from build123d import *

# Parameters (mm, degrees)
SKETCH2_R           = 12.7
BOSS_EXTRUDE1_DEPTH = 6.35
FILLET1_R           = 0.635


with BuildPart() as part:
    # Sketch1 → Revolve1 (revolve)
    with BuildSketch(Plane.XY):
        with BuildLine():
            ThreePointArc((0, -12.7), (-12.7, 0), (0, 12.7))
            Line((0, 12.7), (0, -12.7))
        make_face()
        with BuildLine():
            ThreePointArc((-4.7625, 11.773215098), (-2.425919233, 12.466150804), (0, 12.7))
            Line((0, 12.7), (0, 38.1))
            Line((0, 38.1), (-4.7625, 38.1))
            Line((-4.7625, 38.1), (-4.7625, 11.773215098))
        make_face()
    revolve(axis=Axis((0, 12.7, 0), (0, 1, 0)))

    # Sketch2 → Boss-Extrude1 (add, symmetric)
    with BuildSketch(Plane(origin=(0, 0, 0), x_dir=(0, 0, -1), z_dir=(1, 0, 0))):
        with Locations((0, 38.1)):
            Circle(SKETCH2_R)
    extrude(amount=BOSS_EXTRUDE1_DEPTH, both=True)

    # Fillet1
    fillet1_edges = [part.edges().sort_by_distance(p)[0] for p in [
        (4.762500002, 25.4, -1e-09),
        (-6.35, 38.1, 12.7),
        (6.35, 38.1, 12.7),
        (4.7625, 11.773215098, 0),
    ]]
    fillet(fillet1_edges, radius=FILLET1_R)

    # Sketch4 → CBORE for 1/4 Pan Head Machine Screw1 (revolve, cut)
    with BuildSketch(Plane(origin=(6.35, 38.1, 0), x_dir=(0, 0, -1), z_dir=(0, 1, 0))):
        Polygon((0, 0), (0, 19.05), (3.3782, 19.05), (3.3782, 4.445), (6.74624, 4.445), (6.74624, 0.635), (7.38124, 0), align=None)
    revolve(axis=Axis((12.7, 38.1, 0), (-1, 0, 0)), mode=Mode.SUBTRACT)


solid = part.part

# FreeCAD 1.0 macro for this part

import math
import FreeCAD as App
import Part
import Sketcher

V = App.Vector
Q = App.Units.Quantity


def edges_at(feature, points):
    """Names of the edges that pass closest to the given points."""
    edges = feature.Shape.Edges
    near = lambda p: min(range(len(edges)), key=lambda i: edges[i].distToShape(Part.Vertex(*p))[0])
    return sorted({f"Edge{near(p) + 1}" for p in points})

doc = App.newDocument("Part")
params = doc.addObject("Spreadsheet::Sheet", "Params")
for row, (alias, value) in enumerate([
    ("sketch1_radius", "0.5 in"),
    ("sketch1_height", "2 in"),
    ("sketch1_width", "0.1875 in"),
    ("revolution_angle", "360 deg"),
    ("sketch2_diameter", "1 in"),
    ("pad1_length", "0.5 in"),
    ("fillet_radius", "0.025 in"),
    ("sketch3_width", "0.75 in"),
    ("sketch3_width2", "0.15 in"),
    ("sketch3_width3", "0.575 in"),
    ("sketch3_height", "0.133 in"),
    ("groove_angle", "360 deg"),
], start=1):
    params.set(f"A{row}", alias)
    params.set(f"B{row}", "=" + value)
    params.setAlias(f"B{row}", alias)

body = doc.addObject("PartDesign::Body", "Body")

# Sketch on XY plane
sketch1 = body.newObject("Sketcher::SketchObject", "Sketch")
sketch1.AttachmentSupport = (doc.getObject("XY_Plane"), [""])
sketch1.MapMode = "FlatFace"
sketch1.addGeometry([
    Part.ArcOfCircle(Part.Circle(V(0, 0, 0), V(0, 0, 1), 12.7), math.radians(112.024313), math.radians(270)),
    Part.LineSegment(V(0, -12.7, 0), V(0, 38.1, 0)),
    Part.LineSegment(V(0, 38.1, 0), V(-4.7625, 38.1, 0)),
    Part.LineSegment(V(-4.7625, 38.1, 0), V(-4.7625, 11.773215, 0)),
], False)
sketch1.addConstraint([
    Sketcher.Constraint("Coincident", 0, 2, 1, 1),
    Sketcher.Constraint("Coincident", 1, 2, 2, 1),
    Sketcher.Constraint("Coincident", 2, 2, 3, 1),
    Sketcher.Constraint("Coincident", 3, 2, 0, 1),
    Sketcher.Constraint("Vertical", 1),
    Sketcher.Constraint("Horizontal", 2),
    Sketcher.Constraint("Vertical", 3),
    Sketcher.Constraint("Coincident", 0, 3, -1, 1),
    Sketcher.Constraint("PointOnObject", 0, 2, -2),
    Sketcher.Constraint("Radius", 0, Q("0.5 in")),
    Sketcher.Constraint("DistanceY", 1, 1, 1, 2, Q("2 in")),
    Sketcher.Constraint("DistanceX", 2, 2, 2, 1, Q("0.1875 in")),
])
sketch1.setExpression("Constraints[9]", "Params.sketch1_radius")
sketch1.setExpression("Constraints[10]", "Params.sketch1_height")
sketch1.setExpression("Constraints[11]", "Params.sketch1_width")
revolution = body.newObject("PartDesign::Revolution", "Revolution")
revolution.Profile = sketch1
revolution.ReferenceAxis = (sketch1, ["V_Axis"])
revolution.setExpression("Angle", "Params.revolution_angle")

# Sketch on YZ plane
sketch2 = body.newObject("Sketcher::SketchObject", "Sketch001")
sketch2.AttachmentSupport = (doc.getObject("YZ_Plane"), [""])
sketch2.MapMode = "FlatFace"
sketch2.addGeometry(Part.Circle(V(38.1, 0, 0), V(0, 0, 1), 12.7), False)
sketch2.addConstraint([
    Sketcher.Constraint("PointOnObject", 0, 3, -1),
    Sketcher.Constraint("Diameter", 0, Q("1 in")),
    Sketcher.Constraint("DistanceX", -1, 1, 0, 3, Q("1.5 in")),
])
sketch2.setExpression("Constraints[1]", "Params.sketch2_diameter")
pad1 = body.newObject("PartDesign::Pad", "Pad")
pad1.Profile = sketch2
pad1.setExpression("Length", "Params.pad1_length")
pad1.Midplane = True
doc.recompute()

fillet = body.newObject("PartDesign::Fillet", "Fillet")
fillet.Base = (pad1, edges_at(pad1, [
    (4.763, 25.4, 0),
    (-6.35, 38.1, 12.7),
    (6.35, 38.1, 12.7),
    (4.763, 11.773, 0),
]))
fillet.setExpression("Radius", "Params.fillet_radius")

# Sketch on XZ plane
sketch3 = body.newObject("Sketcher::SketchObject", "Sketch002")
sketch3.AttachmentSupport = (doc.getObject("XZ_Plane"), [""])
sketch3.MapMode = "FlatFace"
sketch3.AttachmentOffset = App.Placement(V(0, 0, -1.5 * 25.4), App.Rotation())
sketch3.addGeometry([
    Part.LineSegment(V(-12.7, 0, 0), V(6.35, 0, 0)),  # 0
    Part.LineSegment(V(6.35, 0, 0), V(6.35, -7.38124, 0)),  # 1
    Part.LineSegment(V(6.35, -7.38124, 0), V(5.715, -6.74624, 0)),  # 2
    Part.LineSegment(V(5.715, -6.74624, 0), V(1.905, -6.74624, 0)),  # 3
    Part.LineSegment(V(1.905, -6.74624, 0), V(1.905, -3.3782, 0)),  # 4
    Part.LineSegment(V(1.905, -3.3782, 0), V(-12.7, -3.3782, 0)),  # 5
    Part.LineSegment(V(-12.7, -3.3782, 0), V(-12.7, 0, 0)),  # 6
], False)
sketch3.addConstraint([
    Sketcher.Constraint("Coincident", 0, 2, 1, 1),
    Sketcher.Constraint("Coincident", 1, 2, 2, 1),
    Sketcher.Constraint("Coincident", 2, 2, 3, 1),
    Sketcher.Constraint("Coincident", 3, 2, 4, 1),
    Sketcher.Constraint("Coincident", 4, 2, 5, 1),
    Sketcher.Constraint("Coincident", 5, 2, 6, 1),
    Sketcher.Constraint("Coincident", 6, 2, 0, 1),
    Sketcher.Constraint("Horizontal", 0),
    Sketcher.Constraint("Vertical", 1),
    Sketcher.Constraint("Horizontal", 3),
    Sketcher.Constraint("Vertical", 4),
    Sketcher.Constraint("Horizontal", 5),
    Sketcher.Constraint("Vertical", 6),
    Sketcher.Constraint("PointOnObject", 0, 2, -1),
    Sketcher.Constraint("Angle", 2, Q("135 deg")),
    Sketcher.Constraint("DistanceX", 0, 1, 0, 2, Q("0.75 in")),
    Sketcher.Constraint("DistanceX", 3, 2, 3, 1, Q("0.15 in")),
    Sketcher.Constraint("DistanceX", 5, 2, -1, 1, Q("0.5 in")),
    Sketcher.Constraint("DistanceX", 5, 2, 5, 1, Q("0.575 in")),
    Sketcher.Constraint("DistanceY", 6, 1, 6, 2, Q("0.133 in")),
    Sketcher.Constraint("DistanceY", 1, 2, 1, 1, Q("0.2906 in")),
])
sketch3.setExpression("Constraints[15]", "Params.sketch3_width")
sketch3.setExpression("Constraints[16]", "Params.sketch3_width2")
sketch3.setExpression("Constraints[18]", "Params.sketch3_width3")
sketch3.setExpression("Constraints[19]", "Params.sketch3_height")
groove = body.newObject("PartDesign::Groove", "Groove")
groove.Profile = sketch3
groove.ReferenceAxis = (sketch3, ["H_Axis"])
groove.setExpression("Angle", "Params.groove_angle")

doc.recompute()
